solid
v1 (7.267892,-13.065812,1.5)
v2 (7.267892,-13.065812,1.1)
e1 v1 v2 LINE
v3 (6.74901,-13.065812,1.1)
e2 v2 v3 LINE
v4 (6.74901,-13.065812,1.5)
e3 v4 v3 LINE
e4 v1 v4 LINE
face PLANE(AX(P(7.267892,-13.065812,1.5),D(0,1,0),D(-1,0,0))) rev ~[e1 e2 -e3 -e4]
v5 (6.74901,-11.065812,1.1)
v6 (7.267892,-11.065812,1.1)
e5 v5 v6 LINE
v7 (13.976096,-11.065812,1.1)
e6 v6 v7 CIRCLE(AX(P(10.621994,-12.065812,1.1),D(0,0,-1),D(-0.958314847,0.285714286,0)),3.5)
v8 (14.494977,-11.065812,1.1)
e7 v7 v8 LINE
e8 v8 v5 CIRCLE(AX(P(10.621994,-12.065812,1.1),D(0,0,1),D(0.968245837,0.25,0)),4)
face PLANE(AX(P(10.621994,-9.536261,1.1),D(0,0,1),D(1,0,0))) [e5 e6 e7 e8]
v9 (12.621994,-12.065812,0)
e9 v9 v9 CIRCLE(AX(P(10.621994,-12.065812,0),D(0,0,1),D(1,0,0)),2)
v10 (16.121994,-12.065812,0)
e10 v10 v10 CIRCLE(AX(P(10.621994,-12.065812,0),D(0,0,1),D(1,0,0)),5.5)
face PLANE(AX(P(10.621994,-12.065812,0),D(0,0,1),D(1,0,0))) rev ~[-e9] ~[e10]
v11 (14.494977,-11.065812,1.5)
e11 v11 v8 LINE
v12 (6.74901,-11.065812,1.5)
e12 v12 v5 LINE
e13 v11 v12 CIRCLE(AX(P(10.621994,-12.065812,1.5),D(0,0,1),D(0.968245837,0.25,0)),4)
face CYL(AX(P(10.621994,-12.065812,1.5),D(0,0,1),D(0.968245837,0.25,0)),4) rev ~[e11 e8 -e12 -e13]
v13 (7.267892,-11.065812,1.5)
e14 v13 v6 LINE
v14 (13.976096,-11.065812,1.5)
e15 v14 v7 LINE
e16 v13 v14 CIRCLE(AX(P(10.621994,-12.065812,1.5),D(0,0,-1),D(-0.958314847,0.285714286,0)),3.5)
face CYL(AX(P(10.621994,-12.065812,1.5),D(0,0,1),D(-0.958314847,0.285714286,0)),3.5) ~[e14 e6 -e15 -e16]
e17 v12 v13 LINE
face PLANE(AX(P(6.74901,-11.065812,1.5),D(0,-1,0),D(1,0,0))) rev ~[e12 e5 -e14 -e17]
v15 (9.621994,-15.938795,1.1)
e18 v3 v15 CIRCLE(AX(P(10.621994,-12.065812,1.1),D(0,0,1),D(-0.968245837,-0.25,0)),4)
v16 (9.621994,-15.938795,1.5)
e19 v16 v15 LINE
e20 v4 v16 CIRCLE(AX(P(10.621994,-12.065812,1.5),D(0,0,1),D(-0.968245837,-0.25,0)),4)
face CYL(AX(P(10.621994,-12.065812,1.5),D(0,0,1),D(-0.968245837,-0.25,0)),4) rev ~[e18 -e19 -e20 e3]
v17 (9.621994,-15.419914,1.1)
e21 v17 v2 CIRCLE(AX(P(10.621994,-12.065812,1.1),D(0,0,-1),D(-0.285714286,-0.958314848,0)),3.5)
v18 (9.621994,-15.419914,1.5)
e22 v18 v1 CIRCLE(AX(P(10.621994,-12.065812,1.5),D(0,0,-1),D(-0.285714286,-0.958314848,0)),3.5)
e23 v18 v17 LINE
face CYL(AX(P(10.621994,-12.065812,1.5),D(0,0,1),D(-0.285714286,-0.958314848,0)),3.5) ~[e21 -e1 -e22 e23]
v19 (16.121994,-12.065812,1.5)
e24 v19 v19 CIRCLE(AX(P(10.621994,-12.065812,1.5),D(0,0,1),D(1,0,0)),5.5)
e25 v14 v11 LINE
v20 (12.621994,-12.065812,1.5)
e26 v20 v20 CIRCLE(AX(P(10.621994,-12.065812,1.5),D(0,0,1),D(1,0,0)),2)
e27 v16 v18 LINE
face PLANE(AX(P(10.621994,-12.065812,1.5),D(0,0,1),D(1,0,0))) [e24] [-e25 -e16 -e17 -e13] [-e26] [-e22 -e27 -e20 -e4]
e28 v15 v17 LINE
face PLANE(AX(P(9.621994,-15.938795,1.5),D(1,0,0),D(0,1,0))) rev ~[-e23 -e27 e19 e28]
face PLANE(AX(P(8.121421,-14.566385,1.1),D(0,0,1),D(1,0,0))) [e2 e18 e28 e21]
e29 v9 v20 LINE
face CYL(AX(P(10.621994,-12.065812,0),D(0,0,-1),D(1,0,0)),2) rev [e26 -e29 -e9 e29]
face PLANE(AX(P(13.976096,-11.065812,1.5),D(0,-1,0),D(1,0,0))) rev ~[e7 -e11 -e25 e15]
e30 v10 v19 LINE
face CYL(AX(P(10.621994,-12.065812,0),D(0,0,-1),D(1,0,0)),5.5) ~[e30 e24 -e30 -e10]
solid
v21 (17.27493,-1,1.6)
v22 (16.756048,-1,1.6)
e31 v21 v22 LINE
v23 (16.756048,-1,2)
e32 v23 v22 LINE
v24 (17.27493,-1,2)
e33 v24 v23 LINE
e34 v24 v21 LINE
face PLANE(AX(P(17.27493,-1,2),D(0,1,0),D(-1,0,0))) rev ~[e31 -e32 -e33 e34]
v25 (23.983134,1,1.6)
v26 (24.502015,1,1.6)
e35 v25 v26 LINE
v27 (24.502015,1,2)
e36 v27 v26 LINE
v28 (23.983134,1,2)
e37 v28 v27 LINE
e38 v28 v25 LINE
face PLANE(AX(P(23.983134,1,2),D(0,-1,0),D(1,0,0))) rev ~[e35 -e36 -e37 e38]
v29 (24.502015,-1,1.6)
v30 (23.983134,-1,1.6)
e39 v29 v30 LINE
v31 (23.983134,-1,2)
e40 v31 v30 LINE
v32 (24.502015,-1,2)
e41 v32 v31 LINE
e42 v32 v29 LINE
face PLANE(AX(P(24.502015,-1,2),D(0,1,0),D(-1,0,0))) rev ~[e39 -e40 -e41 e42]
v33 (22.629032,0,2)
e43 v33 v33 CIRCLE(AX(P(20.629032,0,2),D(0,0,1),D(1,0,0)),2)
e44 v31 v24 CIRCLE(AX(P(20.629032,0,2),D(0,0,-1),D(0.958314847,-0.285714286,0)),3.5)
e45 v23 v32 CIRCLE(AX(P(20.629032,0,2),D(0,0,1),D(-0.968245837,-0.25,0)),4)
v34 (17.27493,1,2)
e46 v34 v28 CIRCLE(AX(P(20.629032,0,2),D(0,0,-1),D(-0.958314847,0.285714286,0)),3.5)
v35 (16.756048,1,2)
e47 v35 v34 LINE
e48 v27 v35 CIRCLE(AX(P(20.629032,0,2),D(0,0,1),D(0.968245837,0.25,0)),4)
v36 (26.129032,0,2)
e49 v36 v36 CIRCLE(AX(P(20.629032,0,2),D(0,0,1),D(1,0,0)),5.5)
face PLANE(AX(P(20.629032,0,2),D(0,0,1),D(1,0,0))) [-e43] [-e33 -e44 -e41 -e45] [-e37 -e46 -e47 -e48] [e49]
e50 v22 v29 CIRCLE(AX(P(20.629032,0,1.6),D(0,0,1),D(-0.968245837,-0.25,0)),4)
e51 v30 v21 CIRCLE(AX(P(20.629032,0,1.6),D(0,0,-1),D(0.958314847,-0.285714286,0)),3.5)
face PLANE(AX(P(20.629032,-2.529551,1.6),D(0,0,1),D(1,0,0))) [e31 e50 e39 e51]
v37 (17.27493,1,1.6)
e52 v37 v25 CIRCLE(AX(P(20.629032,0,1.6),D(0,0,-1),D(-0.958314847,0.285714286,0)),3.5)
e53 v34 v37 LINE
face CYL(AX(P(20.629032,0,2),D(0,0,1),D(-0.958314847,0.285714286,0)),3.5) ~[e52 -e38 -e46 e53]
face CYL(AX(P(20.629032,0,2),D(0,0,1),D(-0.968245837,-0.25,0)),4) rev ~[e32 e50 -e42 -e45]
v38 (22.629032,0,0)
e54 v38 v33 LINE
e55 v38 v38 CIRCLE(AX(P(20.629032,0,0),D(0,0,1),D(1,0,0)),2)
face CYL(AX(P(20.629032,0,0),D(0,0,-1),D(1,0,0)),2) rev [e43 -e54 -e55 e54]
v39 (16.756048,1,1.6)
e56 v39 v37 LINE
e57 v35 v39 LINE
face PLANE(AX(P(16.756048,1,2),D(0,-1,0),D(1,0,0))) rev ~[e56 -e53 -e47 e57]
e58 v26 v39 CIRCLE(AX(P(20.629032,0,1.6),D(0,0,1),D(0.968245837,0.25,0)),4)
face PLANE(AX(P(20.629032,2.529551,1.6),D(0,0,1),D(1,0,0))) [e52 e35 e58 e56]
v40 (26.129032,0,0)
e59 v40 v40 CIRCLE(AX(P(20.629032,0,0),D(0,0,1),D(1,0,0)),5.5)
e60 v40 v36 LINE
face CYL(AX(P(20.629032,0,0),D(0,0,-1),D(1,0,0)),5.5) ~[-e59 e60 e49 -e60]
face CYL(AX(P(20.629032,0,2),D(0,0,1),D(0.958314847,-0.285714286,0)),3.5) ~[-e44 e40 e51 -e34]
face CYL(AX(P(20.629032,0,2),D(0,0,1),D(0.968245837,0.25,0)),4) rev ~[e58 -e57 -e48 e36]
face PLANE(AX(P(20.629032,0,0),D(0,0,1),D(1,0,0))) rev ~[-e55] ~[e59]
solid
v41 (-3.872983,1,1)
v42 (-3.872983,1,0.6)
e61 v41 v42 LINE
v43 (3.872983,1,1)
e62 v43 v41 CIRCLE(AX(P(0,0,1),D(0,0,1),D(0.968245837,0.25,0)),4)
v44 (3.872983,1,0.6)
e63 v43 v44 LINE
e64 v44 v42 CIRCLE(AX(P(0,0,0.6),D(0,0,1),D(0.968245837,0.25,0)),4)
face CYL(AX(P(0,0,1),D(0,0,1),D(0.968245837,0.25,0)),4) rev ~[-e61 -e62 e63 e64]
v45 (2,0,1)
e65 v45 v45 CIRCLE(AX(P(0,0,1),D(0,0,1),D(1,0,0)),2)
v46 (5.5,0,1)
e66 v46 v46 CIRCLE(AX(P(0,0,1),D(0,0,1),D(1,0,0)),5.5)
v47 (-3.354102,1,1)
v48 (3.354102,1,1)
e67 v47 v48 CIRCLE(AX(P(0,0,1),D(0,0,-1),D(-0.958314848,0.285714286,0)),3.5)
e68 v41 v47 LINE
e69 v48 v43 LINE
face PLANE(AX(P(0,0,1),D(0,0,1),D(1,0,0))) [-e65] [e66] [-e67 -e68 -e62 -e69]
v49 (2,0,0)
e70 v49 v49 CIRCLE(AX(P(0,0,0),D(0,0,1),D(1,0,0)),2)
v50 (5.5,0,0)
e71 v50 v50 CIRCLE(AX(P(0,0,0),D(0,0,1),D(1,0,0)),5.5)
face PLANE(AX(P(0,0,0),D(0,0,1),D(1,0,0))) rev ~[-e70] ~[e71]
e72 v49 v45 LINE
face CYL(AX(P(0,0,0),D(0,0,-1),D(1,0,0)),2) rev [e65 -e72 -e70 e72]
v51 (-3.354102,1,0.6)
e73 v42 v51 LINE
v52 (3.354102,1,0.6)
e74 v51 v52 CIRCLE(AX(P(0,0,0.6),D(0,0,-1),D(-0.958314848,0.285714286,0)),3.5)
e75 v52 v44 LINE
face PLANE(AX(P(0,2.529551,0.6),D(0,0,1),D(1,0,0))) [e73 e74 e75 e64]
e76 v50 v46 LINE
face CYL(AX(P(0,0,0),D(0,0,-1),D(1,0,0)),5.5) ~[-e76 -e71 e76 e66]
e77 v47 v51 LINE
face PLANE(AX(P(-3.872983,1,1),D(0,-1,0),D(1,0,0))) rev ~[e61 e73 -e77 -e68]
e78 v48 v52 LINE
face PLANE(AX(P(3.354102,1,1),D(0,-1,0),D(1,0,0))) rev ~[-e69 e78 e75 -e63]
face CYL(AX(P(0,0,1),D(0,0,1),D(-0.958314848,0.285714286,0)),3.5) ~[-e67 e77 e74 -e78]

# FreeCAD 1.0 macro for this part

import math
import FreeCAD as App
import Part
import Sketcher
Q = App.Units.Quantity

doc = App.newDocument("Part")
body = doc.addObject("PartDesign::Body", "Body")

sketch1 = body.newObject("Sketcher::SketchObject", "Sketch")
sketch1.AttachmentSupport = (doc.getObject("XY_Plane"), [""])
sketch1.MapMode = "FlatFace"
sketch1.addGeometry(Part.Circle(App.Vector(0, 0, 0), App.Vector(0, 0, 1), 5.5), False)
sketch1.addGeometry(Part.Circle(App.Vector(0, 0, 0), App.Vector(0, 0, 1), 2), False)
sketch1.addConstraint(Sketcher.Constraint("Coincident", 0, 3, -1, 1))
sketch1.addConstraint(Sketcher.Constraint("Coincident", 1, 3, -1, 1))
sketch1.addConstraint(Sketcher.Constraint("Diameter", 0, Q("11 mm")))
sketch1.addConstraint(Sketcher.Constraint("Diameter", 1, Q("4 mm")))
pad1 = body.newObject("PartDesign::Pad", "Pad")
pad1.Profile = sketch1
pad1.Length = 1

sketch2 = body.newObject("Sketcher::SketchObject", "Sketch001")
sketch2.AttachmentSupport = (doc.getObject("XY_Plane"), [""])
sketch2.MapMode = "FlatFace"
sketch2.AttachmentOffset = App.Placement(App.Vector(0, 0, 1), App.Rotation())
sketch2.addGeometry(Part.LineSegment(App.Vector(3.4, 1, 0), App.Vector(3.9, 1, 0)), False)
sketch2.addGeometry(Part.ArcOfCircle(Part.Circle(App.Vector(0, 0, 0), App.Vector(0, 0, 1), 4), math.radians(14), math.radians(166)), False)
sketch2.addGeometry(Part.LineSegment(App.Vector(-3.9, 1, 0), App.Vector(-3.4, 1, 0)), False)
sketch2.addGeometry(Part.ArcOfCircle(Part.Circle(App.Vector(0, 0, 0), App.Vector(0, 0, 1), 3.5), math.radians(17), math.radians(163)), False)
sketch2.addConstraint(Sketcher.Constraint("Coincident", 0, 2, 1, 1))
sketch2.addConstraint(Sketcher.Constraint("Coincident", 1, 2, 2, 1))
sketch2.addConstraint(Sketcher.Constraint("Coincident", 2, 2, 3, 2))
sketch2.addConstraint(Sketcher.Constraint("Coincident", 3, 1, 0, 1))
sketch2.addConstraint(Sketcher.Constraint("Horizontal", 0))
sketch2.addConstraint(Sketcher.Constraint("Horizontal", 2))
sketch2.addConstraint(Sketcher.Constraint("Coincident", 1, 3, -1, 1))
sketch2.addConstraint(Sketcher.Constraint("Coincident", 3, 3, -1, 1))
sketch2.addConstraint(Sketcher.Constraint("Horizontal", 0, 2, 1, 2))
sketch2.addConstraint(Sketcher.Constraint("Radius", 1, Q("4 mm")))
sketch2.addConstraint(Sketcher.Constraint("Radius", 3, Q("3.5 mm")))
sketch2.addConstraint(Sketcher.Constraint("DistanceY", -1, 1, 0, 2, Q("1 mm")))
pocket1 = body.newObject("PartDesign::Pocket", "Pocket")
pocket1.Profile = sketch2
pocket1.Length = 0.4
body2 = doc.addObject("PartDesign::Body", "Body001")

sketch3 = body2.newObject("Sketcher::SketchObject", "Sketch002")
sketch3.AttachmentSupport = (doc.getObject("XY_Plane001"), [""])
sketch3.MapMode = "FlatFace"
sketch3.addGeometry(Part.Circle(App.Vector(20.6, 0, 0), App.Vector(0, 0, 1), 5.5), False)
sketch3.addGeometry(Part.Circle(App.Vector(20.6, 0, 0), App.Vector(0, 0, 1), 2), False)
sketch3.addConstraint(Sketcher.Constraint("Coincident", 1, 3, 0, 3))
sketch3.addConstraint(Sketcher.Constraint("PointOnObject", 0, 3, -1))
sketch3.addConstraint(Sketcher.Constraint("Diameter", 0, Q("11 mm")))
sketch3.addConstraint(Sketcher.Constraint("Diameter", 1, Q("4 mm")))
sketch3.addConstraint(Sketcher.Constraint("DistanceX", -1, 1, 0, 3, Q("20.629032 mm")))
pad2 = body2.newObject("PartDesign::Pad", "Pad001")
pad2.Profile = sketch3
pad2.Length = 2

sketch4 = body2.newObject("Sketcher::SketchObject", "Sketch003")
sketch4.AttachmentSupport = (doc.getObject("XY_Plane001"), [""])
sketch4.MapMode = "FlatFace"
sketch4.AttachmentOffset = App.Placement(App.Vector(0, 0, 2), App.Rotation())
sketch4.addGeometry(Part.ArcOfCircle(Part.Circle(App.Vector(20.6, 0, 0), App.Vector(0, 0, 1), 3.5), math.radians(17), math.radians(163)), False)
sketch4.addGeometry(Part.LineSegment(App.Vector(24, 1, 0), App.Vector(24.5, 1, 0)), False)
sketch4.addGeometry(Part.ArcOfCircle(Part.Circle(App.Vector(20.6, 0, 0), App.Vector(0, 0, 1), 4), math.radians(14), math.radians(166)), False)
sketch4.addGeometry(Part.LineSegment(App.Vector(16.8, 1, 0), App.Vector(17.3, 1, 0)), False)
sketch4.addGeometry(Part.LineSegment(App.Vector(24.5, -1, 0), App.Vector(24, -1, 0)), False)
sketch4.addGeometry(Part.ArcOfCircle(Part.Circle(App.Vector(20.6, 0, 0), App.Vector(0, 0, 1), 3.5), math.radians(-163), math.radians(-17)), False)
sketch4.addGeometry(Part.LineSegment(App.Vector(17.3, -1, 0), App.Vector(16.8, -1, 0)), False)
sketch4.addGeometry(Part.ArcOfCircle(Part.Circle(App.Vector(20.6, 0, 0), App.Vector(0, 0, 1), 4), math.radians(-166), math.radians(-14)), False)
sketch4.addConstraint(Sketcher.Constraint("Coincident", 0, 1, 1, 1))
sketch4.addConstraint(Sketcher.Constraint("Coincident", 1, 2, 2, 1))
sketch4.addConstraint(Sketcher.Constraint("Coincident", 2, 2, 3, 1))
sketch4.addConstraint(Sketcher.Constraint("Coincident", 3, 2, 0, 2))
sketch4.addConstraint(Sketcher.Constraint("Coincident", 4, 2, 5, 2))
sketch4.addConstraint(Sketcher.Constraint("Coincident", 5, 1, 6, 1))
sketch4.addConstraint(Sketcher.Constraint("Coincident", 6, 2, 7, 1))
sketch4.addConstraint(Sketcher.Constraint("Coincident", 7, 2, 4, 1))
sketch4.addConstraint(Sketcher.Constraint("Horizontal", 1))
sketch4.addConstraint(Sketcher.Constraint("Horizontal", 3))
sketch4.addConstraint(Sketcher.Constraint("Horizontal", 4))
sketch4.addConstraint(Sketcher.Constraint("Horizontal", 6))
sketch4.addConstraint(Sketcher.Constraint("Coincident", 2, 3, 0, 3))
sketch4.addConstraint(Sketcher.Constraint("Coincident", 5, 3, 0, 3))
sketch4.addConstraint(Sketcher.Constraint("Coincident", 7, 3, 0, 3))
sketch4.addConstraint(Sketcher.Constraint("Equal", 0, 5))
sketch4.addConstraint(Sketcher.Constraint("Equal", 2, 7))
sketch4.addConstraint(Sketcher.Constraint("Symmetric", 0, 1, 4, 2, -1))
sketch4.addConstraint(Sketcher.Constraint("Horizontal", 1, 2, 2, 2))
sketch4.addConstraint(Sketcher.Constraint("Horizontal", 4, 2, 5, 1))
sketch4.addConstraint(Sketcher.Constraint("Radius", 2, Q("4 mm")))
sketch4.addConstraint(Sketcher.Constraint("Radius", 0, Q("3.5 mm")))
sketch4.addConstraint(Sketcher.Constraint("DistanceY", -1, 1, 0, 1, Q("1 mm")))
sketch4.addConstraint(Sketcher.Constraint("DistanceX", -1, 1, 0, 3, Q("20.629032 mm")))
pocket2 = body2.newObject("PartDesign::Pocket", "Pocket001")
pocket2.Profile = sketch4
pocket2.Length = 0.4
body3 = doc.addObject("PartDesign::Body", "Body002")

sketch5 = body3.newObject("Sketcher::SketchObject", "Sketch004")
sketch5.AttachmentSupport = (doc.getObject("XY_Plane002"), [""])
sketch5.MapMode = "FlatFace"
sketch5.addGeometry(Part.Circle(App.Vector(10.6, -12.1, 0), App.Vector(0, 0, 1), 5.5), False)
sketch5.addGeometry(Part.Circle(App.Vector(10.6, -12.1, 0), App.Vector(0, 0, 1), 2), False)
sketch5.addConstraint(Sketcher.Constraint("Coincident", 1, 3, 0, 3))
sketch5.addConstraint(Sketcher.Constraint("Diameter", 0, Q("11 mm")))
sketch5.addConstraint(Sketcher.Constraint("Diameter", 1, Q("4 mm")))
sketch5.addConstraint(Sketcher.Constraint("DistanceX", -1, 1, 0, 3, Q("10.621994 mm")))
sketch5.addConstraint(Sketcher.Constraint("DistanceY", 0, 3, -1, 1, Q("12.065812 mm")))
pad3 = body3.newObject("PartDesign::Pad", "Pad002")
pad3.Profile = sketch5
pad3.Length = 1.5

sketch6 = body3.newObject("Sketcher::SketchObject", "Sketch005")
sketch6.AttachmentSupport = (doc.getObject("XY_Plane002"), [""])
sketch6.MapMode = "FlatFace"
sketch6.AttachmentOffset = App.Placement(App.Vector(0, 0, 1.5), App.Rotation())
sketch6.addGeometry(Part.LineSegment(App.Vector(14, -11.1, 0), App.Vector(14.5, -11.1, 0)), False)
sketch6.addGeometry(Part.ArcOfCircle(Part.Circle(App.Vector(10.6, -12.1, 0), App.Vector(0, 0, 1), 4), math.radians(14), math.radians(166)), False)
sketch6.addGeometry(Part.LineSegment(App.Vector(6.7, -11.1, 0), App.Vector(7.3, -11.1, 0)), False)
sketch6.addGeometry(Part.ArcOfCircle(Part.Circle(App.Vector(10.6, -12.1, 0), App.Vector(0, 0, 1), 3.5), math.radians(17), math.radians(163)), False)
sketch6.addGeometry(Part.ArcOfCircle(Part.Circle(App.Vector(10.6, -12.1, 0), App.Vector(0, 0, 1), 4), math.radians(-166), math.radians(-104)), False)
sketch6.addGeometry(Part.LineSegment(App.Vector(9.6, -15.9, 0), App.Vector(9.6, -15.4, 0)), False)
sketch6.addGeometry(Part.ArcOfCircle(Part.Circle(App.Vector(10.6, -12.1, 0), App.Vector(0, 0, 1), 3.5), math.radians(-163), math.radians(-107)), False)
sketch6.addGeometry(Part.LineSegment(App.Vector(7.3, -13.1, 0), App.Vector(6.7, -13.1, 0)), False)
sketch6.addConstraint(Sketcher.Constraint("Coincident", 0, 2, 1, 1))
sketch6.addConstraint(Sketcher.Constraint("Coincident", 1, 2, 2, 1))
sketch6.addConstraint(Sketcher.Constraint("Coincident", 2, 2, 3, 2))
sketch6.addConstraint(Sketcher.Constraint("Coincident", 3, 1, 0, 1))
sketch6.addConstraint(Sketcher.Constraint("Coincident", 4, 2, 5, 1))
sketch6.addConstraint(Sketcher.Constraint("Coincident", 5, 2, 6, 2))
sketch6.addConstraint(Sketcher.Constraint("Coincident", 6, 1, 7, 1))
sketch6.addConstraint(Sketcher.Constraint("Coincident", 7, 2, 4, 1))
sketch6.addConstraint(Sketcher.Constraint("Horizontal", 0))
sketch6.addConstraint(Sketcher.Constraint("Horizontal", 2))
sketch6.addConstraint(Sketcher.Constraint("Vertical", 5))
sketch6.addConstraint(Sketcher.Constraint("Horizontal", 7))
sketch6.addConstraint(Sketcher.Constraint("Coincident", 3, 3, 1, 3))
sketch6.addConstraint(Sketcher.Constraint("Coincident", 4, 3, 1, 3))
sketch6.addConstraint(Sketcher.Constraint("Coincident", 6, 3, 1, 3))
sketch6.addConstraint(Sketcher.Constraint("Equal", 1, 4))
sketch6.addConstraint(Sketcher.Constraint("Equal", 3, 6))
sketch6.addConstraint(Sketcher.Constraint("Horizontal", 0, 2, 1, 2))
sketch6.addConstraint(Sketcher.Constraint("Vertical", 2, 2, 6, 1))
sketch6.addConstraint(Sketcher.Constraint("Equal", 7, 5))
sketch6.addConstraint(Sketcher.Constraint("Radius", 1, Q("4 mm")))
sketch6.addConstraint(Sketcher.Constraint("Radius", 3, Q("3.5 mm")))
sketch6.addConstraint(Sketcher.Constraint("DistanceY", 1, 3, 0, 2, Q("1 mm")))
sketch6.addConstraint(Sketcher.Constraint("DistanceX", -1, 1, 1, 2, Q("6.74901 mm")))
sketch6.addConstraint(Sketcher.Constraint("DistanceY", 1, 3, -1, 1, Q("12.065812 mm")))
pocket3 = body3.newObject("PartDesign::Pocket", "Pocket002")
pocket3.Profile = sketch6
pocket3.Length = 0.4

doc.recompute()
